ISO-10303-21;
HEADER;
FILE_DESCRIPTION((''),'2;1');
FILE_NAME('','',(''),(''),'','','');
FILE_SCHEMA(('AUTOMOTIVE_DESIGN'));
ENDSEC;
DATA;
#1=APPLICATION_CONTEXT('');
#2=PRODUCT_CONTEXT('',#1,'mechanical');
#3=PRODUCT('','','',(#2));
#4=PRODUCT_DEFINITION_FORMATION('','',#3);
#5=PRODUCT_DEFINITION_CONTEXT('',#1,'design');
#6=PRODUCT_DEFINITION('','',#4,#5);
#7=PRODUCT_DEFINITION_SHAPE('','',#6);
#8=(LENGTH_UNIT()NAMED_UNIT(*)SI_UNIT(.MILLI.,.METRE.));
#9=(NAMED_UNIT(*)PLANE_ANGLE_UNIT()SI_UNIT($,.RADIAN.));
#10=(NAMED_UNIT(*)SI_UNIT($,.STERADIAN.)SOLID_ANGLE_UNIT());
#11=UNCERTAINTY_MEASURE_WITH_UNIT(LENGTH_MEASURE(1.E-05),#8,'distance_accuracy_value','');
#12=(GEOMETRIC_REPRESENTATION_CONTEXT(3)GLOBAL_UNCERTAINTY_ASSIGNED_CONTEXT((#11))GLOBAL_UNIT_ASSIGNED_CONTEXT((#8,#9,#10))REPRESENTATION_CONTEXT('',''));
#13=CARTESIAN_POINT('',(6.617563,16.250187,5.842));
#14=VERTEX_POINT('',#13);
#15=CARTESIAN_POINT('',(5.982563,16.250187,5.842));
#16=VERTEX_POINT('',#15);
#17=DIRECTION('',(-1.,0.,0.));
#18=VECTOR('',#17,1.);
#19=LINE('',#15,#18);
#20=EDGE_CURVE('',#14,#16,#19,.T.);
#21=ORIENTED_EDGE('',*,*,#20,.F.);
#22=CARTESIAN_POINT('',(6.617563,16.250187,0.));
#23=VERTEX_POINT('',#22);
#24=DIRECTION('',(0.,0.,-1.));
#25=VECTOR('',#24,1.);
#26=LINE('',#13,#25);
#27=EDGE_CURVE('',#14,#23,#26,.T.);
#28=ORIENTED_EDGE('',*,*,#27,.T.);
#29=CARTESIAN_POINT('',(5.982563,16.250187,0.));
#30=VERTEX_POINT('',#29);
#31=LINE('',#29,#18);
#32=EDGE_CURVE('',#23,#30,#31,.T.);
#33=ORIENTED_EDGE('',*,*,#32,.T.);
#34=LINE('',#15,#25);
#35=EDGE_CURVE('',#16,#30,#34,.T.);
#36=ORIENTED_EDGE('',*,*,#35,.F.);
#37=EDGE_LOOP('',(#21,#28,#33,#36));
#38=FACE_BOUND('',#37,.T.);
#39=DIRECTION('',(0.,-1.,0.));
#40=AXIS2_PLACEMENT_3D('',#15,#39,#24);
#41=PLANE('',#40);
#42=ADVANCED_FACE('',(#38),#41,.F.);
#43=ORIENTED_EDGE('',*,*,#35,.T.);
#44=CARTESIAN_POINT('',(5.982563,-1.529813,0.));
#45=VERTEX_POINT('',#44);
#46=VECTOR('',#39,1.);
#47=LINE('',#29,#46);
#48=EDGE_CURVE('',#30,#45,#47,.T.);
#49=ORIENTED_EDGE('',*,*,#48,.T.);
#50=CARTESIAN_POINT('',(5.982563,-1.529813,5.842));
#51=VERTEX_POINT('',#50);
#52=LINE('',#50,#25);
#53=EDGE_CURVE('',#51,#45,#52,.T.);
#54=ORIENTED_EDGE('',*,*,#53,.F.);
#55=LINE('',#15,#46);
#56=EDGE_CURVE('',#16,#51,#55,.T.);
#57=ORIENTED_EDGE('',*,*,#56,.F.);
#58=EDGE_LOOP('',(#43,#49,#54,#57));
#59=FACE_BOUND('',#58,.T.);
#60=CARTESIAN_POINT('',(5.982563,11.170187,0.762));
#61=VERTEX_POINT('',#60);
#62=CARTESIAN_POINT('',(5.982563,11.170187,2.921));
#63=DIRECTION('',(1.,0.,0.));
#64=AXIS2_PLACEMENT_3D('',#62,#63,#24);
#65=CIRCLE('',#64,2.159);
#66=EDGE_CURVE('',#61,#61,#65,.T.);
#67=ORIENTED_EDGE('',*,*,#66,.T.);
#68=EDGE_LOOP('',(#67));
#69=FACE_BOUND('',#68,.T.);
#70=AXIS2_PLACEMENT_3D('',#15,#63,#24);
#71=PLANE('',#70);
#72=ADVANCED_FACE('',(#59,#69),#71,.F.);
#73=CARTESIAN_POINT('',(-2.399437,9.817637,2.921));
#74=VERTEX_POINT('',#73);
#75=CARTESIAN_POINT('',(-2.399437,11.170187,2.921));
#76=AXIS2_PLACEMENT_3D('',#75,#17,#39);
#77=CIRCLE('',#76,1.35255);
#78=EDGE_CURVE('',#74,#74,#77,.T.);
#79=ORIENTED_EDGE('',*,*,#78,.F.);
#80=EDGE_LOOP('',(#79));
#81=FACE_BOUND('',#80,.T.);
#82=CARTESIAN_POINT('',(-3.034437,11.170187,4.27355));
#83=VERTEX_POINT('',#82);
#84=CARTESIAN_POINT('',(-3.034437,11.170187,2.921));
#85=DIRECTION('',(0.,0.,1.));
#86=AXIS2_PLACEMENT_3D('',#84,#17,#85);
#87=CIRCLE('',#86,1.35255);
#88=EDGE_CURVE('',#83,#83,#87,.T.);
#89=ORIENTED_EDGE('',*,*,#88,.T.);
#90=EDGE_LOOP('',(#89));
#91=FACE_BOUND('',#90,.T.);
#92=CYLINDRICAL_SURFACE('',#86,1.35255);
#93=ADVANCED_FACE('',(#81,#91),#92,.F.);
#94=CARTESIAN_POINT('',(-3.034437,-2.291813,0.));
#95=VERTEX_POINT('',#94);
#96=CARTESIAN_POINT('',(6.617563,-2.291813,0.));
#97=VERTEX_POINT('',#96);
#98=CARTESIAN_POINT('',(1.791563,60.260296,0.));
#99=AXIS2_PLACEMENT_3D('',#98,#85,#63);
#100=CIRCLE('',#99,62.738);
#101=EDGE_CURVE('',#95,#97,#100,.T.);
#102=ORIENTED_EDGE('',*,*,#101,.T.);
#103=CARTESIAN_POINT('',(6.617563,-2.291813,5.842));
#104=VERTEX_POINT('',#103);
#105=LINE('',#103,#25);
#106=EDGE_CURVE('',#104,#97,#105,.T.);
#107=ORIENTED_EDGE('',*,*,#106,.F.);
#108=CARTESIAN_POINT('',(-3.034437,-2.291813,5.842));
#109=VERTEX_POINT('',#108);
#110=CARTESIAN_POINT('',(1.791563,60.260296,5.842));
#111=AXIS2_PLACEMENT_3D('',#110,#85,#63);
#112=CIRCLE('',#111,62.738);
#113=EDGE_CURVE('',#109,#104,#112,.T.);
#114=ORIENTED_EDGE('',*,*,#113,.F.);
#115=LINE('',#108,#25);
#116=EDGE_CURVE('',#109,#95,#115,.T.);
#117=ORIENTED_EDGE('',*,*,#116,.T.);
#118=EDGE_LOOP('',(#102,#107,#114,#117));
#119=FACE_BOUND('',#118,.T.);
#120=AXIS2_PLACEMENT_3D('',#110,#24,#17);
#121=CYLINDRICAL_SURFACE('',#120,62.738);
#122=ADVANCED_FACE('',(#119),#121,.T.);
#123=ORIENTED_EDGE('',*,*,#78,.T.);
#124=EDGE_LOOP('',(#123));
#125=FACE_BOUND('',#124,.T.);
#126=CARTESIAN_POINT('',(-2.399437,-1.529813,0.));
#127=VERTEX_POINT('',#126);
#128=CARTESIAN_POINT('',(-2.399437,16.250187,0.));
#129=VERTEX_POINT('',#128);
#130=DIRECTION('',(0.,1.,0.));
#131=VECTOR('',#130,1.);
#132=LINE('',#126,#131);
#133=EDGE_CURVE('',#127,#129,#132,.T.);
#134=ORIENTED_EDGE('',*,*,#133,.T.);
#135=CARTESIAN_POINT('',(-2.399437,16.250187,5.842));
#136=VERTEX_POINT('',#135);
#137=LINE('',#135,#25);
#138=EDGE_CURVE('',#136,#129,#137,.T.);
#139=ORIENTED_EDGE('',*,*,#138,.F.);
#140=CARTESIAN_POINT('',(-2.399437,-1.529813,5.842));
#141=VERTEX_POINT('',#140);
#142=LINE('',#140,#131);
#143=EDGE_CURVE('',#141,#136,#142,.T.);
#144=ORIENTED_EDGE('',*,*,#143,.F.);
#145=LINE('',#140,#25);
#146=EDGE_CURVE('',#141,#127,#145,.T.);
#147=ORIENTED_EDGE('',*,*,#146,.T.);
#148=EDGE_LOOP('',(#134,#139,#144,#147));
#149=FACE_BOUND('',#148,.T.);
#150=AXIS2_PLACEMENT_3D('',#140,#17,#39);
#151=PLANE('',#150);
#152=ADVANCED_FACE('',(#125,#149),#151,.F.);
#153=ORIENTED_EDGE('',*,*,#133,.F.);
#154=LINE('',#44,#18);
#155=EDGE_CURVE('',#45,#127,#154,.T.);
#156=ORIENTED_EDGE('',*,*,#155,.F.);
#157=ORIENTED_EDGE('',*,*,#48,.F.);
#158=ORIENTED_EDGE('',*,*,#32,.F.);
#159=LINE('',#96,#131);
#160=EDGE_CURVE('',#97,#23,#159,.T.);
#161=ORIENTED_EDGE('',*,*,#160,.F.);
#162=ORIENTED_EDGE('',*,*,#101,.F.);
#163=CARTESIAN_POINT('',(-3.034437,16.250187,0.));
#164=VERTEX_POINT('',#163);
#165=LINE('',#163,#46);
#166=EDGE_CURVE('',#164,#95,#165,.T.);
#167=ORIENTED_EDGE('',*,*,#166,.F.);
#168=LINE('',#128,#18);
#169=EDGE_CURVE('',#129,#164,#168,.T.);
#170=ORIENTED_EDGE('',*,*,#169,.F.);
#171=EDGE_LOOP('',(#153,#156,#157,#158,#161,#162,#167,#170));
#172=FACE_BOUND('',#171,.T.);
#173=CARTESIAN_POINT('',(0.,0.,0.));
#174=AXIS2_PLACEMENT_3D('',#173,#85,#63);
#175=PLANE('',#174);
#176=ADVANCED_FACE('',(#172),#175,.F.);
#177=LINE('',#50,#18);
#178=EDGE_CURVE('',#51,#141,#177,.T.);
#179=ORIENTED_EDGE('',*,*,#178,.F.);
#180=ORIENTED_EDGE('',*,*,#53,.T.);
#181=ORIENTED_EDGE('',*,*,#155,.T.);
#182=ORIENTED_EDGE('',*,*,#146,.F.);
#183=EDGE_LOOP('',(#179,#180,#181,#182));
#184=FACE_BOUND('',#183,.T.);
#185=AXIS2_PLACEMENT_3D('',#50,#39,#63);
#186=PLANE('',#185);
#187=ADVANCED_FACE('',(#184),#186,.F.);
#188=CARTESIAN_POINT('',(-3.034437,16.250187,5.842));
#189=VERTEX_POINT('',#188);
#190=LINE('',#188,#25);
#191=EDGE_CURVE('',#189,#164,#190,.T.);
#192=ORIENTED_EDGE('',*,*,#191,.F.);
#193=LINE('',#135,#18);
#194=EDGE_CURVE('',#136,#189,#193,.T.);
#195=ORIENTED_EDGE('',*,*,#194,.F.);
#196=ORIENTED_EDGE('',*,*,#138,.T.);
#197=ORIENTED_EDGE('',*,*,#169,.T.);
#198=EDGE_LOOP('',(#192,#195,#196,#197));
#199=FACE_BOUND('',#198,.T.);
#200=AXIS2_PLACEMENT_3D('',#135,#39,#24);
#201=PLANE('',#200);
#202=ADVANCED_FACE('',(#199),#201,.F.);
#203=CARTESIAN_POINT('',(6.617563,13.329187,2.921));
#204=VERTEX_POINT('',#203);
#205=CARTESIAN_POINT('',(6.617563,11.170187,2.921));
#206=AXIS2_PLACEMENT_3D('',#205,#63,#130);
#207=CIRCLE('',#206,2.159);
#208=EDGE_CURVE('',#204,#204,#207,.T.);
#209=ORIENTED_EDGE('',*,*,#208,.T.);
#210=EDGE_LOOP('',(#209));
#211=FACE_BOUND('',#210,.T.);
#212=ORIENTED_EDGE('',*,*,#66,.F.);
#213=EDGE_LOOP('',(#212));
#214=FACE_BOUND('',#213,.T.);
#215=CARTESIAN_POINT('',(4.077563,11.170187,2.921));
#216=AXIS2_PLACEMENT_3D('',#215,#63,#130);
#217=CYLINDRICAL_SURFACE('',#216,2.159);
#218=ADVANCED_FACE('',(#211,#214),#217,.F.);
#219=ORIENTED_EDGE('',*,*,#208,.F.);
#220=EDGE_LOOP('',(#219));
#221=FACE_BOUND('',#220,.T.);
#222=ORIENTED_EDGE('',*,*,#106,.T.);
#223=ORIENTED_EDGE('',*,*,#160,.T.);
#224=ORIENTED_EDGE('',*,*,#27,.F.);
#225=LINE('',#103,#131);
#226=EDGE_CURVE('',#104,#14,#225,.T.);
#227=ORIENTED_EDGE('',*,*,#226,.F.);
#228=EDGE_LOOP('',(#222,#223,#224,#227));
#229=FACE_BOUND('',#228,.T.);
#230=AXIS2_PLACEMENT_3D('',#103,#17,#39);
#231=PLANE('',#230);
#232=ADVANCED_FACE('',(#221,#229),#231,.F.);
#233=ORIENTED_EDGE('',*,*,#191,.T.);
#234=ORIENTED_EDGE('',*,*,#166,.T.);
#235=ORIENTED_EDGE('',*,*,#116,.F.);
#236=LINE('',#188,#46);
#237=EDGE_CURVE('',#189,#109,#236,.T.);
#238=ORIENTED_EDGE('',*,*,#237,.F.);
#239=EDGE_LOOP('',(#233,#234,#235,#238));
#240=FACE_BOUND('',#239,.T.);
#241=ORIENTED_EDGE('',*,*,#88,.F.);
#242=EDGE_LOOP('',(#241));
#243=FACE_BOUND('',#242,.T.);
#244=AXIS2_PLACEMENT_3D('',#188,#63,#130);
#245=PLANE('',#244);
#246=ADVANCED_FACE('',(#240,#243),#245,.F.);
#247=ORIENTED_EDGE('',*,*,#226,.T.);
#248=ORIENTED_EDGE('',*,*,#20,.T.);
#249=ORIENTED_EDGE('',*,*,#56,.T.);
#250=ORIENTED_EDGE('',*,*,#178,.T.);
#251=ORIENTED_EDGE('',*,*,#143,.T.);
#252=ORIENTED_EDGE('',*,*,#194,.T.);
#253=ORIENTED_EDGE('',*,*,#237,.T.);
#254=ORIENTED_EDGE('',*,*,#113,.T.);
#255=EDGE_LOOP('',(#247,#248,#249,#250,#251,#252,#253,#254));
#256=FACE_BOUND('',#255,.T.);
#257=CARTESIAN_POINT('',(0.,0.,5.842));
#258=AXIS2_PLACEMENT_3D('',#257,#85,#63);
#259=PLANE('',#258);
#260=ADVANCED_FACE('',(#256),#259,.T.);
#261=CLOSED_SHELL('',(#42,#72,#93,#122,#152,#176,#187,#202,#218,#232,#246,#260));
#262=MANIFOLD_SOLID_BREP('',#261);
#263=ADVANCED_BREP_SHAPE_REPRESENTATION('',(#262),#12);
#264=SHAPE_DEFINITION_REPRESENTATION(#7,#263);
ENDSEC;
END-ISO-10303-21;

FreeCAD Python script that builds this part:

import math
import FreeCAD as App
import Part
import Sketcher
Q = App.Units.Quantity


def add_polygon(sketch, points):
    """Adds a closed chain of lines whose ends are joined by coincident constraints."""
    first, n = sketch.GeometryCount, len(points)
    for a, b in zip(points, points[1:] + points[:1]):
        sketch.addGeometry(Part.LineSegment(App.Vector(*a, 0), App.Vector(*b, 0)), False)
    for i in range(n):
        sketch.addConstraint(Sketcher.Constraint("Coincident", first + i, 2, first + (i + 1) % n, 1))

doc = App.newDocument("Part")
body = doc.addObject("PartDesign::Body", "Body")

sketch1 = doc.addObject("Sketcher::SketchObject", "Sketch")
body.addObject(sketch1)
sketch1.AttachmentSupport = (doc.XY_Plane, [""])
sketch1.MapMode = "FlatFace"
add_polygon(sketch1, [(-3, 16.3), (-3, -2.3), (6.6, -2.3), (6.6, 16.3), (6, 16.3), (6, -1.5), (-2.4, -1.5), (-2.4, 16.3)])
sketch1.addConstraint(Sketcher.Constraint("Vertical", 0))
sketch1.addConstraint(Sketcher.Constraint("Horizontal", 1))
sketch1.addConstraint(Sketcher.Constraint("Vertical", 2))
sketch1.addConstraint(Sketcher.Constraint("Horizontal", 3))
sketch1.addConstraint(Sketcher.Constraint("Vertical", 4))
sketch1.addConstraint(Sketcher.Constraint("Horizontal", 5))
sketch1.addConstraint(Sketcher.Constraint("Vertical", 6))
sketch1.addConstraint(Sketcher.Constraint("Horizontal", 7))
sketch1.addConstraint(Sketcher.Constraint("Horizontal", 3, 2, 6, 2))
sketch1.addConstraint(Sketcher.Constraint("Equal", 3, 7))
sketch1.addConstraint(Sketcher.Constraint("DistanceY", 4, 2, 4, 1, Q("0.7 in")))
sketch1.addConstraint(Sketcher.Constraint("DistanceX", 1, 1, 1, 2, Q("0.38 in")))
sketch1.addConstraint(Sketcher.Constraint("DistanceX", 5, 2, 5, 1, Q("0.33 in")))
sketch1.addConstraint(Sketcher.Constraint("DistanceY", 0, 2, 0, 1, Q("0.73 in")))
sketch1.addConstraint(Sketcher.Constraint("DistanceX", 0, 2, -1, 1, Q("3.034437 mm")))
sketch1.addConstraint(Sketcher.Constraint("DistanceY", 0, 2, -1, 1, Q("2.291813 mm")))
pad1 = doc.addObject("PartDesign::Pad", "Pad")
body.addObject(pad1)
pad1.Profile = sketch1
pad1.Length = Q("0.23 in")

sketch2 = doc.addObject("Sketcher::SketchObject", "Sketch001")
body.addObject(sketch2)
sketch2.AttachmentSupport = (doc.XY_Plane, [""])
sketch2.MapMode = "FlatFace"
sketch2.addGeometry(Part.LineSegment(App.Vector(7, -2, 0), App.Vector(-3, -2, 0)), False)
sketch2.addGeometry(Part.ArcOfCircle(Part.Circle(App.Vector(2, 60, 0), App.Vector(0, 0, 1), 63), math.radians(-94.41), math.radians(-85.59)), False)
sketch2.addConstraint(Sketcher.Constraint("Coincident", 0, 1, 1, 2))
sketch2.addConstraint(Sketcher.Constraint("Coincident", 1, 1, 0, 2))
sketch2.addConstraint(Sketcher.Constraint("Horizontal", 0))
sketch2.addConstraint(Sketcher.Constraint("Radius", 1, Q("2.47 in")))
sketch2.addConstraint(Sketcher.Constraint("DistanceX", 0, 2, 0, 1, Q("0.38 in")))
sketch2.addConstraint(Sketcher.Constraint("DistanceX", -1, 1, 1, 3, Q("1.791563 mm")))
sketch2.addConstraint(Sketcher.Constraint("DistanceY", -1, 1, 1, 3, Q("60.260296 mm")))
pad2 = doc.addObject("PartDesign::Pad", "Pad001")
body.addObject(pad2)
pad2.Profile = sketch2
pad2.Length = Q("0.23 in")

sketch3 = doc.addObject("Sketcher::SketchObject", "Sketch002")
body.addObject(sketch3)
sketch3.AttachmentSupport = (doc.YZ_Plane, [""])
sketch3.MapMode = "FlatFace"
sketch3.AttachmentOffset = App.Placement(App.Vector(0, 0, 6.617563), App.Rotation())
sketch3.addGeometry(Part.Circle(App.Vector(11.2, 2.9, 0), App.Vector(0, 0, 1), 2.2), False)
sketch3.addConstraint(Sketcher.Constraint("Diameter", 0, Q("0.17 in")))
sketch3.addConstraint(Sketcher.Constraint("DistanceY", -1, 1, 0, 3, Q("0.115 in")))
sketch3.addConstraint(Sketcher.Constraint("DistanceX", -1, 1, 0, 3, Q("11.170187 mm")))
pocket1 = doc.addObject("PartDesign::Pocket", "Pocket")
body.addObject(pocket1)
pocket1.Profile = sketch3
pocket1.Length = Q("0.1 in")

sketch4 = doc.addObject("Sketcher::SketchObject", "Sketch003")
body.addObject(sketch4)
sketch4.AttachmentSupport = (doc.YZ_Plane, [""])
sketch4.MapMode = "FlatFace"
sketch4.AttachmentOffset = App.Placement(App.Vector(0, 0, -3.034437), App.Rotation())
sketch4.addGeometry(Part.Circle(App.Vector(11.2, 2.9, 0), App.Vector(0, 0, 1), 1.4), False)
sketch4.addConstraint(Sketcher.Constraint("Diameter", 0, Q("0.1065 in")))
sketch4.addConstraint(Sketcher.Constraint("DistanceY", -1, 1, 0, 3, Q("0.115 in")))
sketch4.addConstraint(Sketcher.Constraint("DistanceX", -1, 1, 0, 3, Q("11.170187 mm")))
doc.recompute()
hole = doc.addObject("PartDesign::Hole", "Hole")
body.addObject(hole)
hole.Profile = sketch4
hole.ThreadType = "None"
hole.Diameter = Q("0.1065 in")
hole.DepthType = "Dimension"
hole.Depth = Q("0.025 in")
hole.DrillPoint = "Flat"
hole.Reversed = True

doc.recompute()
